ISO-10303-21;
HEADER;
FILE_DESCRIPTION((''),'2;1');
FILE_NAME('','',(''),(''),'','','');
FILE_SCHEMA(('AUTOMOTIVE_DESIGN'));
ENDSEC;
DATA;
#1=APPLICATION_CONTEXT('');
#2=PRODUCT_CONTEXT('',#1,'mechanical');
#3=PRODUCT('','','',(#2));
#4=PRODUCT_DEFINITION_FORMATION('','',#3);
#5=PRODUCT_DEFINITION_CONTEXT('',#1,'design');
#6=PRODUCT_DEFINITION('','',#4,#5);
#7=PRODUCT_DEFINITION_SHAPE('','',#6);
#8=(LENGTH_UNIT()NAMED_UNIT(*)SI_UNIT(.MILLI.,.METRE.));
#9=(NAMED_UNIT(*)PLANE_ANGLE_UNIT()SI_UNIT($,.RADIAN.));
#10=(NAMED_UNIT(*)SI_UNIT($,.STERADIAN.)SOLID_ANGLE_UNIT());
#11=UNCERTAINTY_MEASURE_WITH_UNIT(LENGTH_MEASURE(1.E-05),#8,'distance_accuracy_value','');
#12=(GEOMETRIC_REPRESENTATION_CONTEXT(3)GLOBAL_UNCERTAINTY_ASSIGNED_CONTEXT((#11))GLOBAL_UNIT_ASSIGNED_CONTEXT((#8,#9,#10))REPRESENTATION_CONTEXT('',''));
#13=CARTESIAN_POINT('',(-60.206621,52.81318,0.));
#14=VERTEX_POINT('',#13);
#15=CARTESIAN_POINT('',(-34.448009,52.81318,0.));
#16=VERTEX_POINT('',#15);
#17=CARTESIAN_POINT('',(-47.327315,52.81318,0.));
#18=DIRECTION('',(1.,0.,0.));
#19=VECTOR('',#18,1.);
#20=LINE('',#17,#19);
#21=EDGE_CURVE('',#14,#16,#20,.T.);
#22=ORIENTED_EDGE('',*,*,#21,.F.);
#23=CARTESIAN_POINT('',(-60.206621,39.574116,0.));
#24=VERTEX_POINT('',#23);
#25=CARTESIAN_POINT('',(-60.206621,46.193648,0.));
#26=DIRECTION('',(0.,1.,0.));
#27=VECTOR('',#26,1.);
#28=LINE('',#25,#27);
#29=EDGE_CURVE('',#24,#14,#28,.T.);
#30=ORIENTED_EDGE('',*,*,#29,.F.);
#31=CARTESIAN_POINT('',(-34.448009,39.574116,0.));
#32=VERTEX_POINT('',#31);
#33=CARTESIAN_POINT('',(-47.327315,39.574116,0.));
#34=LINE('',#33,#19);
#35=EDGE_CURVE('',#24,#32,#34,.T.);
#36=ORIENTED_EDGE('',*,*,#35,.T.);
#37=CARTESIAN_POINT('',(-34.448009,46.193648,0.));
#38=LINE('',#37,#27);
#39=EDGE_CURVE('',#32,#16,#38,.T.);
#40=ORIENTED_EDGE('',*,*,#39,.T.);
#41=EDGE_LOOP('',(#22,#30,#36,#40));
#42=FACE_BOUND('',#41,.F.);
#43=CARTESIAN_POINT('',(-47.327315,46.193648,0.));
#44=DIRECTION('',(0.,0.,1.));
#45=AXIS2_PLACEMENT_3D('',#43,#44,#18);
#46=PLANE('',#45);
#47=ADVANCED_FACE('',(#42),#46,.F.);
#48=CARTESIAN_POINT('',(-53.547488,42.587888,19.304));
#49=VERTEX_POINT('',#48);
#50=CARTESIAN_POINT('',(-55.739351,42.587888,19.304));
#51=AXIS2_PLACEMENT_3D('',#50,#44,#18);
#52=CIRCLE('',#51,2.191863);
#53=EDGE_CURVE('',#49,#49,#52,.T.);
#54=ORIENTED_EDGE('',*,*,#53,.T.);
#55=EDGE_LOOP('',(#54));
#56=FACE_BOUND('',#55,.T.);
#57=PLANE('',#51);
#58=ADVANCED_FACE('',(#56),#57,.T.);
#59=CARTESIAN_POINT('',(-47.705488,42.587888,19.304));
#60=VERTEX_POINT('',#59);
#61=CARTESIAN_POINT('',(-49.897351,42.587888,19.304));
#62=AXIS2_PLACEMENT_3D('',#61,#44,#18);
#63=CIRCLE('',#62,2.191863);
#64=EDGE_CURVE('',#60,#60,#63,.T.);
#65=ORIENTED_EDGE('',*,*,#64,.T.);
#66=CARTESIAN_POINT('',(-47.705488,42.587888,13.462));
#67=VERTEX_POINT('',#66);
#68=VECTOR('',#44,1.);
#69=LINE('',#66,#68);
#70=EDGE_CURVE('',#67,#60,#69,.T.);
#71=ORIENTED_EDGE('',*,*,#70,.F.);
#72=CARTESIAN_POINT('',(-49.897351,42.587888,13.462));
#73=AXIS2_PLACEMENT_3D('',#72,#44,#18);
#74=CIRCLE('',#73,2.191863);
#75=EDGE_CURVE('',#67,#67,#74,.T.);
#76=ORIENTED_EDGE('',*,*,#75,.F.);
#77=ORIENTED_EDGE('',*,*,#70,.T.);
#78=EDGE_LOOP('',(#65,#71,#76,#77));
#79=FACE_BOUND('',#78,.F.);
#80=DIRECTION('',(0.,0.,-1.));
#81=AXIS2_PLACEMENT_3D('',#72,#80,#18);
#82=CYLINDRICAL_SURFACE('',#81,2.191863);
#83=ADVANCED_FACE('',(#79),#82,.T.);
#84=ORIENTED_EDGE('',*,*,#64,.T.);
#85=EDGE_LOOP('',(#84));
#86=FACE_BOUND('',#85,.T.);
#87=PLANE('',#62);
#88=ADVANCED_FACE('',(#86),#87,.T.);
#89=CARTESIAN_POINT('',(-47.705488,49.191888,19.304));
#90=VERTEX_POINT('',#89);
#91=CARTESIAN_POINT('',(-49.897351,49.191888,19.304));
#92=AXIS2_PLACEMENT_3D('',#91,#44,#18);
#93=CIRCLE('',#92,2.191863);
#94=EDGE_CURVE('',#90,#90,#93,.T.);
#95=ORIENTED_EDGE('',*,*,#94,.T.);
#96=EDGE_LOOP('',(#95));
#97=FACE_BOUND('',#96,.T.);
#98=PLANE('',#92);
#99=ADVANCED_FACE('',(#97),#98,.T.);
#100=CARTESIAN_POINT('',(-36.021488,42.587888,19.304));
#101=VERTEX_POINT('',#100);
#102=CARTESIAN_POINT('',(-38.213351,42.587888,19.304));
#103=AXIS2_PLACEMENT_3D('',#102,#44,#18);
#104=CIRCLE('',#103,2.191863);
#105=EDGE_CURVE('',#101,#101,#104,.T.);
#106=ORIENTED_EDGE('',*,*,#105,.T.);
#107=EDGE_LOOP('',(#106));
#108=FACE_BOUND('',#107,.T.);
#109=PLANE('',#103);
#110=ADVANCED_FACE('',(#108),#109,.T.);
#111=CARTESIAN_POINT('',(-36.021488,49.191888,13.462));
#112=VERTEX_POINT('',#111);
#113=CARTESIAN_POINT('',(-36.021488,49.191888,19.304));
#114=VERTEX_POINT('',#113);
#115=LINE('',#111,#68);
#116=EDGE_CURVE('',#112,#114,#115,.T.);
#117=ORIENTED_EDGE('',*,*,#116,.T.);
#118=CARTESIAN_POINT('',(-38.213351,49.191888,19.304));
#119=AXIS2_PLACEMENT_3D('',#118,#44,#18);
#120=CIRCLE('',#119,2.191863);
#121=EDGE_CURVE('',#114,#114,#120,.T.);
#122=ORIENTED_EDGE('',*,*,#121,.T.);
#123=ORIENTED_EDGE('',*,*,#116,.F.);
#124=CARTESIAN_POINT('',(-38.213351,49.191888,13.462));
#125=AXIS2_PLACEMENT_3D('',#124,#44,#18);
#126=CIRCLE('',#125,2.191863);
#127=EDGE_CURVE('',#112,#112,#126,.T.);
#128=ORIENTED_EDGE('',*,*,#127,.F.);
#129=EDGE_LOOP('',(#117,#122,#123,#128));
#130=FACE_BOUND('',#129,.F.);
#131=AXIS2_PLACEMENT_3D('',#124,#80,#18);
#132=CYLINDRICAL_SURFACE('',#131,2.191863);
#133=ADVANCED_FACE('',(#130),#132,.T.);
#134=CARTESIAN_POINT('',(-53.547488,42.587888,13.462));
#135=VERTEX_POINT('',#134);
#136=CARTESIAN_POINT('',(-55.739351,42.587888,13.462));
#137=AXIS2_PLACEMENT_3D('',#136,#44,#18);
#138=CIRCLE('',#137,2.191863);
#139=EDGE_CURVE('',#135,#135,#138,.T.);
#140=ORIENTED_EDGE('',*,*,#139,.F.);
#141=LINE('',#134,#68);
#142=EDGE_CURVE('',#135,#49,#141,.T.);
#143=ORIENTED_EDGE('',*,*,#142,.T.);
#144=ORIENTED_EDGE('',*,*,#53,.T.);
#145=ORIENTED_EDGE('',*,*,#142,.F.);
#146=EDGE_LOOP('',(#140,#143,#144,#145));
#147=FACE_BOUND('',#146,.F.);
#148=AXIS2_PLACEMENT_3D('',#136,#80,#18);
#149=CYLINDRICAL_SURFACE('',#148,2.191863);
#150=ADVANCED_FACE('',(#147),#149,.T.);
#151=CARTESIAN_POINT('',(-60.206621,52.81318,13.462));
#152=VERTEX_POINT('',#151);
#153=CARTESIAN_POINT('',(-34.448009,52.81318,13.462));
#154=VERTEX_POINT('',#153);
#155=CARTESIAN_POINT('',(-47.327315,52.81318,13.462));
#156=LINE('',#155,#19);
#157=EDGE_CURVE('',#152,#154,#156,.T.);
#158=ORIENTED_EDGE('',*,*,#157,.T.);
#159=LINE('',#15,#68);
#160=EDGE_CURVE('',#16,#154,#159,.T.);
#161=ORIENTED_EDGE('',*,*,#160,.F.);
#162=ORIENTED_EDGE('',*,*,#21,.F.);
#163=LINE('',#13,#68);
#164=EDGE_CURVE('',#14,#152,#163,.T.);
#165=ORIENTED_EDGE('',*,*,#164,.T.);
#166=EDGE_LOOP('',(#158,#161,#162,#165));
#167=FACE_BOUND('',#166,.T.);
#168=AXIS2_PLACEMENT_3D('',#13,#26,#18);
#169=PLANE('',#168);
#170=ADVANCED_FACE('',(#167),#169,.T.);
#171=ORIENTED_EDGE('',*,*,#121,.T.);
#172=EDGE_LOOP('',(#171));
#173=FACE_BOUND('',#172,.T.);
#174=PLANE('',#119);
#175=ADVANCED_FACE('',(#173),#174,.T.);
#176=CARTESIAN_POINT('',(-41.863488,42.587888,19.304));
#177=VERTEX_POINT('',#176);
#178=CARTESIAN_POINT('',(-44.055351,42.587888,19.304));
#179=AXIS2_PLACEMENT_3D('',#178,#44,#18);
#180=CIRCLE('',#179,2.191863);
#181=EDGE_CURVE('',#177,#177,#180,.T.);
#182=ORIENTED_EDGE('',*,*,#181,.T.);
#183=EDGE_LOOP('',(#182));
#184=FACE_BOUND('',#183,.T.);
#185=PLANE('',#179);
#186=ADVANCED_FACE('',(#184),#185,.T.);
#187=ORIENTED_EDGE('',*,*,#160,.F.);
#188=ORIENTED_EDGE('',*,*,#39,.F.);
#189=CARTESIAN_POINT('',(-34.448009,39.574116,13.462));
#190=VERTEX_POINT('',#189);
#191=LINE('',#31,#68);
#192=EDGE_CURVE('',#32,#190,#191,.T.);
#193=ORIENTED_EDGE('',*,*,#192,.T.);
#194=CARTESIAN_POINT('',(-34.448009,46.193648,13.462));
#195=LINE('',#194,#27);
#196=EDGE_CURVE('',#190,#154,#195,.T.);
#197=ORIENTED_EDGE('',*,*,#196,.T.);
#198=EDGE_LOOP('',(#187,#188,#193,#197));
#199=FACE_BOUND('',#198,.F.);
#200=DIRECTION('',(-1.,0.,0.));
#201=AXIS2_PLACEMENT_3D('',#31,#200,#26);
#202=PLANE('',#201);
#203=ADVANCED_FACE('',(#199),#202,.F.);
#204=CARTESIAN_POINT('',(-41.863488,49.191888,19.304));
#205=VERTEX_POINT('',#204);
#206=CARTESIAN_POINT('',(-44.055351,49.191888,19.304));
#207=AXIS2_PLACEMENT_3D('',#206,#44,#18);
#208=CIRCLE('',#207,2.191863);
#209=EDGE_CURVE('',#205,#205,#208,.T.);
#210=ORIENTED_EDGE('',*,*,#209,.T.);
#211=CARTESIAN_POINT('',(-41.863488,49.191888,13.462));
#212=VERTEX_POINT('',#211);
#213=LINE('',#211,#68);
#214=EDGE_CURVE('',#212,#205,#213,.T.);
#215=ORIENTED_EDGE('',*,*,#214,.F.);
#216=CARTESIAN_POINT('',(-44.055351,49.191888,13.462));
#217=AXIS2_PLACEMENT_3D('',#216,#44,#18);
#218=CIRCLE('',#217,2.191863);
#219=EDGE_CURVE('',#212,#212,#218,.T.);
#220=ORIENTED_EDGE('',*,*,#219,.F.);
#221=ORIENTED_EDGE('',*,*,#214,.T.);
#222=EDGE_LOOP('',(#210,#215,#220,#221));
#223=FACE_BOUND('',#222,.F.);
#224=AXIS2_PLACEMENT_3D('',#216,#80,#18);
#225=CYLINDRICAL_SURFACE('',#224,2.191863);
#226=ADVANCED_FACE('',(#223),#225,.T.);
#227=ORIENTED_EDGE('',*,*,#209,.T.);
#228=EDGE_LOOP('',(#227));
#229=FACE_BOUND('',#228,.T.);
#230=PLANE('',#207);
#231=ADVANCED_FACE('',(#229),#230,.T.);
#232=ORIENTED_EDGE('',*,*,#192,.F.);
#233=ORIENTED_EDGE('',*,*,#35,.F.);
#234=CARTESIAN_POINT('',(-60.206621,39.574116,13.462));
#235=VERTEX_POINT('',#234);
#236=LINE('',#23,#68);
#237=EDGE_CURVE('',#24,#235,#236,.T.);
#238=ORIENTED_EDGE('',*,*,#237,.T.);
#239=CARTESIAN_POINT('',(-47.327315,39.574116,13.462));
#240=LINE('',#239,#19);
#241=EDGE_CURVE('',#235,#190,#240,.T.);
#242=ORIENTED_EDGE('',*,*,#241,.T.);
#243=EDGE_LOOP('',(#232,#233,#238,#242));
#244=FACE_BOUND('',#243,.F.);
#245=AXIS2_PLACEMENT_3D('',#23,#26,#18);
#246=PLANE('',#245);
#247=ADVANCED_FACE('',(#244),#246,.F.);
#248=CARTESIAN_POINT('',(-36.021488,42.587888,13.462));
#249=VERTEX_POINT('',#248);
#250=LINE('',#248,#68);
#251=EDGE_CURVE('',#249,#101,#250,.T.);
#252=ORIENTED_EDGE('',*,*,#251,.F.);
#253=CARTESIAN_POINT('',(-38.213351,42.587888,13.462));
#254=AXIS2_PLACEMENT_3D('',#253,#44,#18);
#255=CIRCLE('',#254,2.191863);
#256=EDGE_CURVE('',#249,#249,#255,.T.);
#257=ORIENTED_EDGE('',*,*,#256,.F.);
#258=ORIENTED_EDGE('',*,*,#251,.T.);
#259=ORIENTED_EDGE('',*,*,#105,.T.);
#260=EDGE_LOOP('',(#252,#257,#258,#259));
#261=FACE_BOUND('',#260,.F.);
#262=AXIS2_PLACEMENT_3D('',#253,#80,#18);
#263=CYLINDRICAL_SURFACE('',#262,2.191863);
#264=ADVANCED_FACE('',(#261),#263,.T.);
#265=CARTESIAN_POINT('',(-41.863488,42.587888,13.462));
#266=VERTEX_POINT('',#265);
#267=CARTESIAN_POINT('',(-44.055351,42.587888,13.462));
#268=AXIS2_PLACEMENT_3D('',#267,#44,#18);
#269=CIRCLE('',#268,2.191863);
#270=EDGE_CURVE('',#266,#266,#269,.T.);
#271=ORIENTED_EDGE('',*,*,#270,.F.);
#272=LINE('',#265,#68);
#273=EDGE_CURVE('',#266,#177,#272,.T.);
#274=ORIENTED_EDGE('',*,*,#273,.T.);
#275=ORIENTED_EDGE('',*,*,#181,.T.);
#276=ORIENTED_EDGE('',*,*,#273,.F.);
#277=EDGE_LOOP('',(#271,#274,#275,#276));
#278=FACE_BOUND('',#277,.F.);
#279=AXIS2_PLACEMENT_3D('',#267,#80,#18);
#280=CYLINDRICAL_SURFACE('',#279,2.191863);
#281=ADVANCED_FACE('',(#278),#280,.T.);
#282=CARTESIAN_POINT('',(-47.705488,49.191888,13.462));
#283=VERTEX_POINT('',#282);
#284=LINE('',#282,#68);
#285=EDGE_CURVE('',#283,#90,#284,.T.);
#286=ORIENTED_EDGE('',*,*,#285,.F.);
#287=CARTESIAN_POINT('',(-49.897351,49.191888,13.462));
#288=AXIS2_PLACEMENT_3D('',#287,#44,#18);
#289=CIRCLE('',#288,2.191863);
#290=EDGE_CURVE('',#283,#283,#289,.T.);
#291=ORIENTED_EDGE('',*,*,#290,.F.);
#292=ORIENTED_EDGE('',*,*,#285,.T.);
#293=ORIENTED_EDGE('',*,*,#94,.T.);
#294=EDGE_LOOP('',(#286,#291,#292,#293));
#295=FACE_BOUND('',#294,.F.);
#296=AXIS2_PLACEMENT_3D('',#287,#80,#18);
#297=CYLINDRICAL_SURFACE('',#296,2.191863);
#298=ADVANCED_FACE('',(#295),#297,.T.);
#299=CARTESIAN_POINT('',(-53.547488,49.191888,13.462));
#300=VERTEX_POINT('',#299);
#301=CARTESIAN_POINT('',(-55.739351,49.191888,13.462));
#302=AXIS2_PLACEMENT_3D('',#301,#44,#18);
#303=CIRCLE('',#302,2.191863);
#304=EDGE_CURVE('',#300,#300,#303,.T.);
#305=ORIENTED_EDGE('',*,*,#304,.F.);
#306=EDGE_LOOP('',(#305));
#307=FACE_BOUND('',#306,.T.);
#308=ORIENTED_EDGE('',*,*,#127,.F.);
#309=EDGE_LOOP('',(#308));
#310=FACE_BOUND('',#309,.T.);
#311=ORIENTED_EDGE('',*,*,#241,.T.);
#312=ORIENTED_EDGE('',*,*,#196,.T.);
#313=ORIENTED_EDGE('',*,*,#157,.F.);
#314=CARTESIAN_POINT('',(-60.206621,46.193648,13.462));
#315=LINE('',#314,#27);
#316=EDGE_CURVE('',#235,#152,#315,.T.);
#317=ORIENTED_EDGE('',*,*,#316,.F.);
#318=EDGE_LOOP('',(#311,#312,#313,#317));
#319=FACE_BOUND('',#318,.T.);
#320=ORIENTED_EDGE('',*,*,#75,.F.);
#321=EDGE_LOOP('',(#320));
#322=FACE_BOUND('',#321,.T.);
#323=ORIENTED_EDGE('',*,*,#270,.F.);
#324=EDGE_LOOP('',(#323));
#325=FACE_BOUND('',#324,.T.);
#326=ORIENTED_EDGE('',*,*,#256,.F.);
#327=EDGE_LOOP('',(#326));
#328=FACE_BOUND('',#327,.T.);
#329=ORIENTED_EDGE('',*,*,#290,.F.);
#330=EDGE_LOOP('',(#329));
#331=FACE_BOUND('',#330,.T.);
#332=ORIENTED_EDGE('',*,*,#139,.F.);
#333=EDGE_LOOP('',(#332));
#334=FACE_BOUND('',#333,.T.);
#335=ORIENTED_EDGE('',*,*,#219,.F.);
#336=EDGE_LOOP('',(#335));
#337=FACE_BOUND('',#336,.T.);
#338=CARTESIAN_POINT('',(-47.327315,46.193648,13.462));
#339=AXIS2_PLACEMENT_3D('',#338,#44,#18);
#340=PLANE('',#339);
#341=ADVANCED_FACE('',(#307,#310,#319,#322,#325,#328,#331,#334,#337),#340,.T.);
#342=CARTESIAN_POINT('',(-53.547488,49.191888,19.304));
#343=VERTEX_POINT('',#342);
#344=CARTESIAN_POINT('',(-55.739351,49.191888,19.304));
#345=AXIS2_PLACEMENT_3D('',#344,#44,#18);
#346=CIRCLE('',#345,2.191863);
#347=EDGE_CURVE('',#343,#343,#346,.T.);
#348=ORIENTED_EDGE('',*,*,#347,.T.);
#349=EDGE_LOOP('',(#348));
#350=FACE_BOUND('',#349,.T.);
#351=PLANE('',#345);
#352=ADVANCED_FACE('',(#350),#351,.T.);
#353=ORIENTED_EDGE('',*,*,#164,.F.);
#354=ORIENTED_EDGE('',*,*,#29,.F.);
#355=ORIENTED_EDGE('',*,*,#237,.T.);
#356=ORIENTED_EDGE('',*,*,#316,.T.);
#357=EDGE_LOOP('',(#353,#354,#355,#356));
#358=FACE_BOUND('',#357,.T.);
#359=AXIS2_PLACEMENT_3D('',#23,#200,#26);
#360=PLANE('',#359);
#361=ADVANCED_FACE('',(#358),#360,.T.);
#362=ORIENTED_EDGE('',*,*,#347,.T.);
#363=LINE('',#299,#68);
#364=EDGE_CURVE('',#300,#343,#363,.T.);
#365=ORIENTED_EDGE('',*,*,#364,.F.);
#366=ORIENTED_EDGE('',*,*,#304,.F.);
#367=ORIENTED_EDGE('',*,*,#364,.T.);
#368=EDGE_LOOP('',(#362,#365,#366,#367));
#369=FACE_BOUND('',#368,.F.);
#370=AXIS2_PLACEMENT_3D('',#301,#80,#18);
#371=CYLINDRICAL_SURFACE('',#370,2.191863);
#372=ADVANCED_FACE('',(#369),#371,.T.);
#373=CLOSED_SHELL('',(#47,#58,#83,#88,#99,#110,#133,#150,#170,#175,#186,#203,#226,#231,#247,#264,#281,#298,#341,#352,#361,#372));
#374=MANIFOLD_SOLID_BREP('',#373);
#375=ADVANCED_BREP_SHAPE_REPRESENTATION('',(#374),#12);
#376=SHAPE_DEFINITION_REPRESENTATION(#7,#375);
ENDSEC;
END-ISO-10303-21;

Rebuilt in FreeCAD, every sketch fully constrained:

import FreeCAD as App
import Part
import Sketcher
Q = App.Units.Quantity

doc = App.newDocument("Part")
body = doc.addObject("PartDesign::Body", "Body")

# Sketch on XY plane
sketch1 = body.newObject("Sketcher::SketchObject", "Sketch")
sketch1.AttachmentSupport = (doc.getObject("XY_Plane"), [""])
sketch1.MapMode = "FlatFace"
sketch1.addGeometry(Part.LineSegment(App.Vector(-60.206621, 52.81318, 0), App.Vector(-60.206621, 39.574116, 0)), False)
sketch1.addGeometry(Part.LineSegment(App.Vector(-60.206621, 39.574116, 0), App.Vector(-34.448009, 39.574116, 0)), False)
sketch1.addGeometry(Part.LineSegment(App.Vector(-34.448009, 39.574116, 0), App.Vector(-34.448009, 52.81318, 0)), False)
sketch1.addGeometry(Part.LineSegment(App.Vector(-34.448009, 52.81318, 0), App.Vector(-60.206621, 52.81318, 0)), False)
sketch1.addConstraint(Sketcher.Constraint("Coincident", 0, 2, 1, 1))
sketch1.addConstraint(Sketcher.Constraint("Coincident", 1, 2, 2, 1))
sketch1.addConstraint(Sketcher.Constraint("Coincident", 2, 2, 3, 1))
sketch1.addConstraint(Sketcher.Constraint("Coincident", 3, 2, 0, 1))
sketch1.addConstraint(Sketcher.Constraint("Vertical", 0))
sketch1.addConstraint(Sketcher.Constraint("Horizontal", 1))
sketch1.addConstraint(Sketcher.Constraint("Vertical", 2))
sketch1.addConstraint(Sketcher.Constraint("Horizontal", 3))
sketch1.addConstraint(Sketcher.Constraint("DistanceX", 1, 1, 1, 2, Q("25.758613 mm")))
sketch1.addConstraint(Sketcher.Constraint("DistanceY", 0, 2, 0, 1, Q("13.239064 mm")))
sketch1.addConstraint(Sketcher.Constraint("DistanceX", 0, 2, -1, 1, Q("60.206621 mm")))
sketch1.addConstraint(Sketcher.Constraint("DistanceY", -1, 1, 2, 2, Q("52.81318 mm")))
pad1 = body.newObject("PartDesign::Pad", "Pad")
pad1.Profile = sketch1
pad1.Length = Q("0.53 in")

# Sketch on XY plane
sketch2 = body.newObject("Sketcher::SketchObject", "Sketch001")
sketch2.AttachmentSupport = (doc.getObject("XY_Plane"), [""])
sketch2.MapMode = "FlatFace"
sketch2.AttachmentOffset = App.Placement(App.Vector(0, 0, 0.53 * 25.4), App.Rotation())
sketch2.addGeometry(Part.Circle(App.Vector(-55.739351, 49.191888, 0), App.Vector(0, 0, 1), 2.191863), False)
sketch2.addGeometry(Part.Circle(App.Vector(-55.739351, 42.587888, 0), App.Vector(0, 0, 1), 2.191863), False)
sketch2.addGeometry(Part.Circle(App.Vector(-49.897351, 49.191888, 0), App.Vector(0, 0, 1), 2.191863), False)
sketch2.addGeometry(Part.Circle(App.Vector(-49.897351, 42.587888, 0), App.Vector(0, 0, 1), 2.191863), False)
sketch2.addGeometry(Part.Circle(App.Vector(-44.055351, 49.191888, 0), App.Vector(0, 0, 1), 2.191863), False)
sketch2.addGeometry(Part.Circle(App.Vector(-44.055351, 42.587888, 0), App.Vector(0, 0, 1), 2.191863), False)
sketch2.addGeometry(Part.Circle(App.Vector(-38.213351, 49.191888, 0), App.Vector(0, 0, 1), 2.191863), False)
sketch2.addGeometry(Part.Circle(App.Vector(-38.213351, 42.587888, 0), App.Vector(0, 0, 1), 2.191863), False)
sketch2.addConstraint(Sketcher.Constraint("Equal", 0, 1))
sketch2.addConstraint(Sketcher.Constraint("Equal", 1, 2))
sketch2.addConstraint(Sketcher.Constraint("Equal", 2, 3))
sketch2.addConstraint(Sketcher.Constraint("Equal", 3, 4))
sketch2.addConstraint(Sketcher.Constraint("Equal", 4, 5))
sketch2.addConstraint(Sketcher.Constraint("Equal", 5, 6))
sketch2.addConstraint(Sketcher.Constraint("Equal", 6, 7))
sketch2.addConstraint(Sketcher.Constraint("Horizontal", 0, 3, 2, 3))
sketch2.addConstraint(Sketcher.Constraint("Horizontal", 1, 3, 3, 3))
sketch2.addConstraint(Sketcher.Constraint("Horizontal", 2, 3, 4, 3))
sketch2.addConstraint(Sketcher.Constraint("Horizontal", 3, 3, 5, 3))
sketch2.addConstraint(Sketcher.Constraint("Horizontal", 4, 3, 6, 3))
sketch2.addConstraint(Sketcher.Constraint("Horizontal", 5, 3, 7, 3))
sketch2.addConstraint(Sketcher.Constraint("Vertical", 0, 3, 1, 3))
sketch2.addConstraint(Sketcher.Constraint("Vertical", 2, 3, 3, 3))
sketch2.addConstraint(Sketcher.Constraint("Vertical", 4, 3, 5, 3))
sketch2.addConstraint(Sketcher.Constraint("Vertical", 6, 3, 7, 3))
sketch2.addConstraint(Sketcher.Constraint("DistanceY", 1, 3, 0, 3, Q("0.26 in")))
sketch2.addConstraint(Sketcher.Constraint("DistanceX", 0, 3, 2, 3, Q("0.23 in")))
sketch2.addConstraint(Sketcher.Constraint("DistanceX", 2, 3, 4, 3, Q("0.23 in")))
sketch2.addConstraint(Sketcher.Constraint("DistanceX", 4, 3, 6, 3, Q("0.23 in")))
sketch2.addConstraint(Sketcher.Constraint("Diameter", 0, Q("4.383726 mm")))
sketch2.addConstraint(Sketcher.Constraint("DistanceX", 0, 3, -1, 1, Q("55.739351 mm")))
sketch2.addConstraint(Sketcher.Constraint("DistanceY", -1, 1, 0, 3, Q("49.191888 mm")))
pad2 = body.newObject("PartDesign::Pad", "Pad001")
pad2.Profile = sketch2
pad2.Length = Q("0.23 in")

doc.recompute()
